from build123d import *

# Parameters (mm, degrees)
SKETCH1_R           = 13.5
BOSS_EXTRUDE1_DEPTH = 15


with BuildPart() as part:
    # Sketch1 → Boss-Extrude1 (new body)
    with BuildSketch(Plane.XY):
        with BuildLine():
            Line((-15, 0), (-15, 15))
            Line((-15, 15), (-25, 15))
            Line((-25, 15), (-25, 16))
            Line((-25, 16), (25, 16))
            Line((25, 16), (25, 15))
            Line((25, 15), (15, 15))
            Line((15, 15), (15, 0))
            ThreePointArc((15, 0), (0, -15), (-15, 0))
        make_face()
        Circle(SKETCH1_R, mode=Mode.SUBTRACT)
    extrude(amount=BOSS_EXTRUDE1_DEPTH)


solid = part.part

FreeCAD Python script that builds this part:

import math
import FreeCAD as App
import Part
import Sketcher
from FreeCAD import Vector

doc = App.newDocument("Part")
body = doc.addObject("PartDesign::Body", "Body")

sketch1 = body.newObject("Sketcher::SketchObject", "Sketch")
sketch1.AttachmentSupport = (doc.getObject("XY_Plane"), [""])
sketch1.MapMode = "FlatFace"
sketch1.addGeometry(Part.LineSegment(Vector(-15, 15, 0), Vector(-15, 0, 0)), False)
sketch1.addGeometry(Part.ArcOfCircle(Part.Circle(Vector(0, 0, 0), Vector(0, 0, 1), 15), math.radians(180), math.radians(360)), False)
sketch1.addGeometry(Part.LineSegment(Vector(15, 0, 0), Vector(15, 15, 0)), False)
sketch1.addGeometry(Part.LineSegment(Vector(15, 15, 0), Vector(25, 15, 0)), False)
sketch1.addGeometry(Part.LineSegment(Vector(25, 15, 0), Vector(25, 16, 0)), False)
sketch1.addGeometry(Part.LineSegment(Vector(25, 16, 0), Vector(-25, 16, 0)), False)
sketch1.addGeometry(Part.LineSegment(Vector(-25, 16, 0), Vector(-25, 15, 0)), False)
sketch1.addGeometry(Part.LineSegment(Vector(-25, 15, 0), Vector(-15, 15, 0)), False)
sketch1.addGeometry(Part.Circle(Vector(0, 0, 0), Vector(0, 0, 1), 13.5), False)
sketch1.addConstraint(Sketcher.Constraint("Tangent", 0, 2, 1, 1))
sketch1.addConstraint(Sketcher.Constraint("Tangent", 1, 2, 2, 1))
sketch1.addConstraint(Sketcher.Constraint("Coincident", 2, 2, 3, 1))
sketch1.addConstraint(Sketcher.Constraint("Coincident", 3, 2, 4, 1))
sketch1.addConstraint(Sketcher.Constraint("Coincident", 4, 2, 5, 1))
sketch1.addConstraint(Sketcher.Constraint("Coincident", 5, 2, 6, 1))
sketch1.addConstraint(Sketcher.Constraint("Coincident", 6, 2, 7, 1))
sketch1.addConstraint(Sketcher.Constraint("Coincident", 7, 2, 0, 1))
sketch1.addConstraint(Sketcher.Constraint("Vertical", 0))
sketch1.addConstraint(Sketcher.Constraint("Vertical", 2))
sketch1.addConstraint(Sketcher.Constraint("Horizontal", 3))
sketch1.addConstraint(Sketcher.Constraint("Vertical", 4))
sketch1.addConstraint(Sketcher.Constraint("Horizontal", 5))
sketch1.addConstraint(Sketcher.Constraint("Vertical", 6))
sketch1.addConstraint(Sketcher.Constraint("Horizontal", 7))
sketch1.addConstraint(Sketcher.Constraint("Coincident", 1, 3, -1, 1))
sketch1.addConstraint(Sketcher.Constraint("Coincident", 8, 3, -1, 1))
sketch1.addConstraint(Sketcher.Constraint("Symmetric", 3, 2, 6, 2, -2))
sketch1.addConstraint(Sketcher.Constraint("Diameter", 8, 27.0))
sketch1.addConstraint(Sketcher.Constraint("Radius", 1, 15.0))
sketch1.addConstraint(Sketcher.Constraint("DistanceX", 3, 1, 3, 2, 10.0))
sketch1.addConstraint(Sketcher.Constraint("DistanceY", 0, 2, 0, 1, 15.0))
sketch1.addConstraint(Sketcher.Constraint("DistanceY", 4, 1, 4, 2, 1.0))
pad1 = body.newObject("PartDesign::Pad", "Pad")
pad1.Profile = sketch1
pad1.Length = 15

doc.recompute()
